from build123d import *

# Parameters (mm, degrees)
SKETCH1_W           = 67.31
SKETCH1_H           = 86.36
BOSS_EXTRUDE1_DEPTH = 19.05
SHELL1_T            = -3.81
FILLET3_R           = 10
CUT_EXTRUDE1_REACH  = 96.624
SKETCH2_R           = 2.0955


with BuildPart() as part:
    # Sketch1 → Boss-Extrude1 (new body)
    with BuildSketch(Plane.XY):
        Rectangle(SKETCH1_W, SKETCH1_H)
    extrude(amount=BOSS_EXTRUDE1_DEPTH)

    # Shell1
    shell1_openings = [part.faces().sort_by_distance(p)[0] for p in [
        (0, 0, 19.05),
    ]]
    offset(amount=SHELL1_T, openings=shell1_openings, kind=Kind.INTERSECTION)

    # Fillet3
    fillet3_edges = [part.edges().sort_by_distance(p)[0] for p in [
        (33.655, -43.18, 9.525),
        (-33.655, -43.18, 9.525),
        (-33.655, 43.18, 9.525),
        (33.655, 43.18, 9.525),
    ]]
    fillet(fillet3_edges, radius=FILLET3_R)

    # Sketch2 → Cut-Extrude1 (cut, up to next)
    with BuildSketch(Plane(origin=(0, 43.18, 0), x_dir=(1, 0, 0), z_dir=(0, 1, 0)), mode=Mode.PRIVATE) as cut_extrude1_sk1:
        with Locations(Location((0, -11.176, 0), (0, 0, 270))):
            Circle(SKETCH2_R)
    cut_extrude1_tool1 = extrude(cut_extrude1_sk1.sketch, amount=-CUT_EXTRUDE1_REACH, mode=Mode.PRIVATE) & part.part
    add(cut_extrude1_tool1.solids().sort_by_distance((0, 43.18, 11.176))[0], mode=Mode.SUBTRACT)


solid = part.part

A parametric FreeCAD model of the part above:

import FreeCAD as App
import Part
import Sketcher

V = App.Vector
Q = App.Units.Quantity


def edges_at(feature, points):
    """Names of the edges that pass closest to the given points."""
    edges = feature.Shape.Edges
    near = lambda p: min(range(len(edges)), key=lambda i: edges[i].distToShape(Part.Vertex(*p))[0])
    return sorted({f"Edge{near(p) + 1}" for p in points})


def faces_at(feature, points):
    """Names of the faces that lie closest to the given points."""
    faces = feature.Shape.Faces
    near = lambda p: min(range(len(faces)), key=lambda i: faces[i].distToShape(Part.Vertex(*p))[0])
    return sorted({f"Face{near(p) + 1}" for p in points})

doc = App.newDocument("Part")
body = doc.addObject("PartDesign::Body", "Body")

sketch1 = doc.addObject("Sketcher::SketchObject", "Sketch")
body.addObject(sketch1)
sketch1.AttachmentSupport = (doc.XY_Plane, [""])
sketch1.MapMode = "FlatFace"
sketch1.addGeometry(Part.LineSegment(V(-34, 43, 0), V(-34, -43, 0)), False)
sketch1.addGeometry(Part.LineSegment(V(-34, -43, 0), V(34, -43, 0)), False)
sketch1.addGeometry(Part.LineSegment(V(34, -43, 0), V(34, 43, 0)), False)
sketch1.addGeometry(Part.LineSegment(V(34, 43, 0), V(-34, 43, 0)), False)
sketch1.addConstraint(Sketcher.Constraint("Coincident", 0, 2, 1, 1))
sketch1.addConstraint(Sketcher.Constraint("Coincident", 1, 2, 2, 1))
sketch1.addConstraint(Sketcher.Constraint("Coincident", 2, 2, 3, 1))
sketch1.addConstraint(Sketcher.Constraint("Coincident", 3, 2, 0, 1))
sketch1.addConstraint(Sketcher.Constraint("Vertical", 0))
sketch1.addConstraint(Sketcher.Constraint("Horizontal", 1))
sketch1.addConstraint(Sketcher.Constraint("Vertical", 2))
sketch1.addConstraint(Sketcher.Constraint("Horizontal", 3))
sketch1.addConstraint(Sketcher.Constraint("Symmetric", 0, 2, 2, 2, -1, 1))
sketch1.addConstraint(Sketcher.Constraint("DistanceY", 0, 2, 0, 1, Q("3.4 in")))
sketch1.addConstraint(Sketcher.Constraint("DistanceX", 1, 1, 1, 2, Q("2.65 in")))
pad1 = doc.addObject("PartDesign::Pad", "Pad")
body.addObject(pad1)
pad1.Profile = sketch1
pad1.Length = Q("0.75 in")
doc.recompute()

thickness = doc.addObject("PartDesign::Thickness", "Thickness")
body.addObject(thickness)
thickness.Base = (pad1, faces_at(pad1, [(0, 0, 19.05)]))
thickness.Value = Q("0.15 in")
thickness.Reversed = True
thickness.Join = "Intersection"
doc.recompute()

fillet = doc.addObject("PartDesign::Fillet", "Fillet")
body.addObject(fillet)
fillet.Base = (thickness, edges_at(thickness, [
    (33.655, -43.18, 9.525),
    (-33.655, -43.18, 9.525),
    (-33.655, 43.18, 9.525),
    (33.655, 43.18, 9.525),
]))
fillet.Radius = 10

sketch2 = doc.addObject("Sketcher::SketchObject", "Sketch001")
body.addObject(sketch2)
sketch2.AttachmentSupport = (doc.XZ_Plane, [""])
sketch2.MapMode = "FlatFace"
sketch2.AttachmentOffset = App.Placement(V(0, 0, -1.7 * 25.4), App.Rotation())
sketch2.addGeometry(Part.Circle(V(0, 11.2, 0), V(0, 0, 1), 2.1), False)
sketch2.addConstraint(Sketcher.Constraint("PointOnObject", 0, 3, -2))
sketch2.addConstraint(Sketcher.Constraint("Diameter", 0, Q("0.165 in")))
sketch2.addConstraint(Sketcher.Constraint("DistanceY", -1, 1, 0, 3, Q("0.44 in")))
pocket1 = doc.addObject("PartDesign::Pocket", "Pocket")
body.addObject(pocket1)
pocket1.Profile = sketch2
pocket1.Type = "UpToFirst"
pocket1.Reversed = True

doc.recompute()
